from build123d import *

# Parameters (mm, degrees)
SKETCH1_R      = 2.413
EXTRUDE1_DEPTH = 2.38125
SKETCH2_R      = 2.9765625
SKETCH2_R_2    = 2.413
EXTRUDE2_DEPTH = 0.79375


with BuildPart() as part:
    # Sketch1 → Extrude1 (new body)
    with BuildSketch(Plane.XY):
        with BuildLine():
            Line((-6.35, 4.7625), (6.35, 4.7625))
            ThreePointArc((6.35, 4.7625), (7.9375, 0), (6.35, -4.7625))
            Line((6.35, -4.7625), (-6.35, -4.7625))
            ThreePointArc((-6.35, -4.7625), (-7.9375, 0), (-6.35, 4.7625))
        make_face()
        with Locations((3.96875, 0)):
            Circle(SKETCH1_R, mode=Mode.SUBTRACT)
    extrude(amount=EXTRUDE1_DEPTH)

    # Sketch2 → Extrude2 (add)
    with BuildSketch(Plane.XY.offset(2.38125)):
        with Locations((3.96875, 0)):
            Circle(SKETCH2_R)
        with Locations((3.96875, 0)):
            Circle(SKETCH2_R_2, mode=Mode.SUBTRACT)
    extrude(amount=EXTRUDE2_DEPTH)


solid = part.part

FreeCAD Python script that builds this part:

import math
import FreeCAD as App
import Part
import Sketcher
from FreeCAD import Vector
Q = App.Units.Quantity

doc = App.newDocument("Part")
body = doc.addObject("PartDesign::Body", "Body")

# Sketch on XY plane
sketch1 = doc.addObject("Sketcher::SketchObject", "Sketch")
body.addObject(sketch1)
sketch1.AttachmentSupport = (doc.XY_Plane, [""])
sketch1.MapMode = "FlatFace"
sketch1.addGeometry([
    Part.LineSegment(Vector(6.3, 4.8, 0), Vector(-6.3, 4.8, 0)),  # 0
    Part.ArcOfCircle(Part.Circle(Vector(0, 0, 0), Vector(0, 0, 1), 7.9), math.radians(143), math.radians(217)),  # 1
    Part.LineSegment(Vector(-6.3, -4.8, 0), Vector(6.3, -4.8, 0)),  # 2
    Part.ArcOfCircle(Part.Circle(Vector(0, 0, 0), Vector(0, 0, 1), 7.9), math.radians(-37), math.radians(37)),  # 3
    Part.Circle(Vector(4, 0, 0), Vector(0, 0, 1), 2.4),  # 4
], False)
sketch1.addConstraint([
    Sketcher.Constraint("Coincident", 0, 2, 1, 1),
    Sketcher.Constraint("Coincident", 1, 2, 2, 1),
    Sketcher.Constraint("Coincident", 2, 2, 3, 1),
    Sketcher.Constraint("Coincident", 3, 2, 0, 1),
    Sketcher.Constraint("Horizontal", 0),
    Sketcher.Constraint("Horizontal", 2),
    Sketcher.Constraint("Coincident", 1, 3, -1, 1),
    Sketcher.Constraint("Coincident", 3, 3, -1, 1),
    Sketcher.Constraint("Equal", 1, 3),
    Sketcher.Constraint("PointOnObject", 4, 3, -1),
    Sketcher.Constraint("Vertical", 0, 2, 1, 2),
    Sketcher.Constraint("Diameter", 4, Q("0.19 in")),
    Sketcher.Constraint("DistanceX", 0, 2, 0, 1, Q("0.5 in")),
    Sketcher.Constraint("Radius", 1, Q("0.3125 in")),
    Sketcher.Constraint("DistanceX", -1, 1, 4, 3, Q("0.15625 in")),
])
pad1 = doc.addObject("PartDesign::Pad", "Pad")
body.addObject(pad1)
pad1.Profile = sketch1
pad1.Length = Q("0.09375 in")

# Sketch on XY plane
sketch2 = doc.addObject("Sketcher::SketchObject", "Sketch001")
body.addObject(sketch2)
sketch2.AttachmentSupport = (doc.XY_Plane, [""])
sketch2.MapMode = "FlatFace"
sketch2.AttachmentOffset = App.Placement(Vector(0, 0, 0.09375 * 25.4), App.Rotation())
sketch2.addGeometry([
    Part.Circle(Vector(4, 0, 0), Vector(0, 0, 1), 3),
    Part.Circle(Vector(4, 0, 0), Vector(0, 0, 1), 2.4),
], False)
sketch2.addConstraint([
    Sketcher.Constraint("Coincident", 1, 3, 0, 3),
    Sketcher.Constraint("PointOnObject", 0, 3, -1),
    Sketcher.Constraint("Diameter", 1, Q("0.19 in")),
    Sketcher.Constraint("Diameter", 0, Q("0.234375 in")),
    Sketcher.Constraint("DistanceX", -1, 1, 0, 3, Q("0.15625 in")),
])
pad2 = doc.addObject("PartDesign::Pad", "Pad001")
body.addObject(pad2)
pad2.Profile = sketch2
pad2.Length = Q("0.03125 in")

doc.recompute()
